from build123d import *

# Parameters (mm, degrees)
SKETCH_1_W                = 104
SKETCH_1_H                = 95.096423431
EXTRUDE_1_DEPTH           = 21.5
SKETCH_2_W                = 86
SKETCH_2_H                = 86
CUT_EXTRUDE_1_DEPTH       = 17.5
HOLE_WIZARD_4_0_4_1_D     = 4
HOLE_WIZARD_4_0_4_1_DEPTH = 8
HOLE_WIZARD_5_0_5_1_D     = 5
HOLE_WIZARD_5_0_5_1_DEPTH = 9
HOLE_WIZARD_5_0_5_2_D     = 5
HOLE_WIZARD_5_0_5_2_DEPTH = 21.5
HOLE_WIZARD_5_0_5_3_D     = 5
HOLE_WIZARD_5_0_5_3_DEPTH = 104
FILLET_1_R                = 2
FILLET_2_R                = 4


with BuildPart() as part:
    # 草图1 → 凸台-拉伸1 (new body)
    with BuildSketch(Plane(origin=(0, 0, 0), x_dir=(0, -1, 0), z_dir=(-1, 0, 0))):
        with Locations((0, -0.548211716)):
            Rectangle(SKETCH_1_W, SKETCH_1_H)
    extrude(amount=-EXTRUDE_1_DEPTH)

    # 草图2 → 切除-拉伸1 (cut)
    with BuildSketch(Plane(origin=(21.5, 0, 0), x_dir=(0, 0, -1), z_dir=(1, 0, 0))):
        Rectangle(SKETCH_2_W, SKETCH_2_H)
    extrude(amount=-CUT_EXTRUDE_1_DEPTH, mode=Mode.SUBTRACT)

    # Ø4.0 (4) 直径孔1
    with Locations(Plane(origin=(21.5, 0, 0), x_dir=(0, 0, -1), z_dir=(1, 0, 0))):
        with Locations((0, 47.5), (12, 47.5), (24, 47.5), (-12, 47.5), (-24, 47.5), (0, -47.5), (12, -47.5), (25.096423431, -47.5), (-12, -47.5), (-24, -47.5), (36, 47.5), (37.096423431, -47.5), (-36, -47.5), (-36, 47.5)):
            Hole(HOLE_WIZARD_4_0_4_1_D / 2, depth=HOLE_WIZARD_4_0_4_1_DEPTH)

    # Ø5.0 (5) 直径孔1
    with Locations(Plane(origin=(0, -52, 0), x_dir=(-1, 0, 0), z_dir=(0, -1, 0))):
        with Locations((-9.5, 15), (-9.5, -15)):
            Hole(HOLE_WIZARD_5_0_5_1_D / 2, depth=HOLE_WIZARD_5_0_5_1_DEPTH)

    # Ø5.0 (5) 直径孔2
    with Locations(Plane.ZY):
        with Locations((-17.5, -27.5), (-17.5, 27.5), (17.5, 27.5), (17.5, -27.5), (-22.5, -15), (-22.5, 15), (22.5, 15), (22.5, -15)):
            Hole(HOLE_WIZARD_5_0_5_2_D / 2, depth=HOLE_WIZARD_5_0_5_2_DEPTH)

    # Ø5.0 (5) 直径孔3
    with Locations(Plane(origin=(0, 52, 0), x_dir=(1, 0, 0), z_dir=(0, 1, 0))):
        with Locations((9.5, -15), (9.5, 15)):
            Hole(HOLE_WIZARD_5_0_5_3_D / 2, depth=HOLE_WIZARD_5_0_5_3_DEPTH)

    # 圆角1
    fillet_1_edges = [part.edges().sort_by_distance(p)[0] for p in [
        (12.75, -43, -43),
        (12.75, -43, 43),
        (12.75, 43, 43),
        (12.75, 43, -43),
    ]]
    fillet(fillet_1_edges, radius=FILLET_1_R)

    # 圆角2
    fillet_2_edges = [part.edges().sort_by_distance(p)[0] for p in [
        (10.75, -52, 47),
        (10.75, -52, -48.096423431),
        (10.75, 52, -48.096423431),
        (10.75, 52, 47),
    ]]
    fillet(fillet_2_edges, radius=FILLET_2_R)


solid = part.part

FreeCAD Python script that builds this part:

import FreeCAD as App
import Part
import Sketcher


def edges_at(feature, points):
    """Names of the edges that pass closest to the given points."""
    edges = feature.Shape.Edges
    near = lambda p: min(range(len(edges)), key=lambda i: edges[i].distToShape(Part.Vertex(*p))[0])
    return sorted({f"Edge{near(p) + 1}" for p in points})

doc = App.newDocument("Part")
body = doc.addObject("PartDesign::Body", "Body")

# Sketch on YZ plane
sketch1 = body.newObject("Sketcher::SketchObject", "Sketch")
sketch1.AttachmentSupport = (doc.getObject("YZ_Plane"), [""])
sketch1.MapMode = "FlatFace"
sketch1.addGeometry([
    Part.LineSegment(App.Vector(52, 47, 0), App.Vector(52, -48.096423, 0)),
    Part.LineSegment(App.Vector(52, -48.096423, 0), App.Vector(-52, -48.096423, 0)),
    Part.LineSegment(App.Vector(-52, -48.096423, 0), App.Vector(-52, 47, 0)),
    Part.LineSegment(App.Vector(-52, 47, 0), App.Vector(52, 47, 0)),
], False)
sketch1.addConstraint([
    Sketcher.Constraint("Coincident", 0, 2, 1, 1),
    Sketcher.Constraint("Coincident", 1, 2, 2, 1),
    Sketcher.Constraint("Coincident", 2, 2, 3, 1),
    Sketcher.Constraint("Coincident", 3, 2, 0, 1),
    Sketcher.Constraint("Vertical", 0),
    Sketcher.Constraint("Horizontal", 1),
    Sketcher.Constraint("Vertical", 2),
    Sketcher.Constraint("Horizontal", 3),
    Sketcher.Constraint("DistanceX", 1, 2, 1, 1, 104.0),
    Sketcher.Constraint("DistanceX", -1, 1, 0, 2, 52.0),
    Sketcher.Constraint("DistanceY", -1, 1, 2, 2, 47.0),
    Sketcher.Constraint("DistanceY", 0, 2, 0, 1, 95.096423),
])
pad1 = body.newObject("PartDesign::Pad", "Pad")
pad1.Profile = sketch1
pad1.Length = 21.5

# Sketch on YZ plane
sketch2 = body.newObject("Sketcher::SketchObject", "Sketch001")
sketch2.AttachmentSupport = (doc.getObject("YZ_Plane"), [""])
sketch2.MapMode = "FlatFace"
sketch2.AttachmentOffset = App.Placement(App.Vector(0, 0, 21.5), App.Rotation())
sketch2.addGeometry([
    Part.LineSegment(App.Vector(43, 43, 0), App.Vector(-43, 43, 0)),
    Part.LineSegment(App.Vector(-43, 43, 0), App.Vector(-43, -43, 0)),
    Part.LineSegment(App.Vector(-43, -43, 0), App.Vector(43, -43, 0)),
    Part.LineSegment(App.Vector(43, -43, 0), App.Vector(43, 43, 0)),
], False)
sketch2.addConstraint([
    Sketcher.Constraint("Coincident", 0, 2, 1, 1),
    Sketcher.Constraint("Coincident", 1, 2, 2, 1),
    Sketcher.Constraint("Coincident", 2, 2, 3, 1),
    Sketcher.Constraint("Coincident", 3, 2, 0, 1),
    Sketcher.Constraint("Horizontal", 0),
    Sketcher.Constraint("Vertical", 1),
    Sketcher.Constraint("Horizontal", 2),
    Sketcher.Constraint("Vertical", 3),
    Sketcher.Constraint("Symmetric", 0, 2, 2, 2, -1, 1),
    Sketcher.Constraint("Equal", 2, 1),
    Sketcher.Constraint("DistanceX", 0, 2, 0, 1, 86.0),
])
pocket1 = body.newObject("PartDesign::Pocket", "Pocket")
pocket1.Profile = sketch2
pocket1.Length = 17.5

# Sketch on YZ plane
sketch3 = body.newObject("Sketcher::SketchObject", "Sketch002")
sketch3.AttachmentSupport = (doc.getObject("YZ_Plane"), [""])
sketch3.MapMode = "FlatFace"
sketch3.AttachmentOffset = App.Placement(App.Vector(0, 0, 21.5), App.Rotation())
sketch3.addGeometry([
    Part.Circle(App.Vector(47.5, 0, 0), App.Vector(0, 0, 1), 2),  # 0
    Part.Circle(App.Vector(47.5, -12, 0), App.Vector(0, 0, 1), 2),  # 1
    Part.Circle(App.Vector(47.5, -24, 0), App.Vector(0, 0, 1), 2),  # 2
    Part.Circle(App.Vector(47.5, 12, 0), App.Vector(0, 0, 1), 2),  # 3
    Part.Circle(App.Vector(47.5, 24, 0), App.Vector(0, 0, 1), 2),  # 4
    Part.Circle(App.Vector(-47.5, 0, 0), App.Vector(0, 0, 1), 2),  # 5
    Part.Circle(App.Vector(-47.5, -12, 0), App.Vector(0, 0, 1), 2),  # 6
    Part.Circle(App.Vector(-47.5, -25.096423, 0), App.Vector(0, 0, 1), 2),  # 7
    Part.Circle(App.Vector(-47.5, 12, 0), App.Vector(0, 0, 1), 2),  # 8
    Part.Circle(App.Vector(-47.5, 24, 0), App.Vector(0, 0, 1), 2),  # 9
    Part.Circle(App.Vector(47.5, -36, 0), App.Vector(0, 0, 1), 2),  # 10
    Part.Circle(App.Vector(-47.5, -37.096423, 0), App.Vector(0, 0, 1), 2),  # 11
    Part.Circle(App.Vector(-47.5, 36, 0), App.Vector(0, 0, 1), 2),  # 12
    Part.Circle(App.Vector(47.5, 36, 0), App.Vector(0, 0, 1), 2),  # 13
], False)
sketch3.addConstraint([
    Sketcher.Constraint("Equal", 0, 1),
    Sketcher.Constraint("Equal", 1, 2),
    Sketcher.Constraint("Equal", 2, 3),
    Sketcher.Constraint("Equal", 3, 4),
    Sketcher.Constraint("Equal", 4, 5),
    Sketcher.Constraint("Equal", 5, 6),
    Sketcher.Constraint("Equal", 6, 7),
    Sketcher.Constraint("Equal", 7, 8),
    Sketcher.Constraint("Equal", 8, 9),
    Sketcher.Constraint("Equal", 9, 10),
    Sketcher.Constraint("Equal", 10, 11),
    Sketcher.Constraint("Equal", 11, 12),
    Sketcher.Constraint("Equal", 12, 13),
    Sketcher.Constraint("Symmetric", 0, 3, 5, 3, -1, 1),
    Sketcher.Constraint("Symmetric", 3, 3, 6, 3, -1, 1),
    Sketcher.Constraint("Symmetric", 1, 3, 8, 3, -1, 1),
    Sketcher.Constraint("Symmetric", 2, 3, 9, 3, -1, 1),
    Sketcher.Constraint("Symmetric", 10, 3, 12, 3, -1, 1),
    Sketcher.Constraint("Symmetric", 1, 3, 6, 3, -2),
    Sketcher.Constraint("Symmetric", 4, 3, 9, 3, -2),
    Sketcher.Constraint("Symmetric", 12, 3, 13, 3, -2),
    Sketcher.Constraint("PointOnObject", 0, 3, -1),
    Sketcher.Constraint("Vertical", 0, 3, 1, 3),
    Sketcher.Constraint("Vertical", 1, 3, 2, 3),
    Sketcher.Constraint("Vertical", 6, 3, 7, 3),
    Sketcher.Constraint("Vertical", 4, 3, 10, 3),
    Sketcher.Constraint("Vertical", 9, 3, 11, 3),
    Sketcher.Constraint("Diameter", 0, 4.0),
    Sketcher.Constraint("DistanceY", 1, 3, -1, 1, 12.0),
    Sketcher.Constraint("DistanceY", 2, 3, -1, 1, 24.0),
    Sketcher.Constraint("DistanceY", 10, 3, -1, 1, 36.0),
    Sketcher.Constraint("DistanceX", 5, 3, 0, 3, 95.0),
    Sketcher.Constraint("DistanceY", 11, 3, 7, 3, 12.0),
    Sketcher.Constraint("DistanceY", 7, 3, -1, 1, 25.096423),
])
doc.recompute()
hole = body.newObject("PartDesign::Hole", "Hole")
hole.Profile = sketch3
hole.ThreadType = "None"
hole.Diameter = 4
hole.DepthType = "Dimension"
hole.Depth = 8
hole.DrillPoint = "Flat"

# Sketch on XZ plane
sketch4 = body.newObject("Sketcher::SketchObject", "Sketch003")
sketch4.AttachmentSupport = (doc.getObject("XZ_Plane"), [""])
sketch4.MapMode = "FlatFace"
sketch4.AttachmentOffset = App.Placement(App.Vector(0, 0, 52), App.Rotation())
sketch4.addGeometry([
    Part.Circle(App.Vector(9.5, -15, 0), App.Vector(0, 0, 1), 2.5),
    Part.Circle(App.Vector(9.5, 15, 0), App.Vector(0, 0, 1), 2.5),
], False)
sketch4.addConstraint([
    Sketcher.Constraint("Equal", 0, 1),
    Sketcher.Constraint("Symmetric", 0, 3, 1, 3, -1),
    Sketcher.Constraint("Diameter", 0, 5.0),
    Sketcher.Constraint("DistanceY", 0, 3, -1, 1, 15.0),
    Sketcher.Constraint("DistanceX", -1, 1, 0, 3, 9.5),
])
doc.recompute()
hole2 = body.newObject("PartDesign::Hole", "Hole001")
hole2.Profile = sketch4
hole2.ThreadType = "None"
hole2.Diameter = 5
hole2.DepthType = "Dimension"
hole2.Depth = 9
hole2.DrillPoint = "Flat"

# Sketch on YZ plane
sketch5 = body.newObject("Sketcher::SketchObject", "Sketch004")
sketch5.AttachmentSupport = (doc.getObject("YZ_Plane"), [""])
sketch5.MapMode = "FlatFace"
sketch5.addGeometry([
    Part.Circle(App.Vector(-27.5, -17.5, 0), App.Vector(0, 0, 1), 2.5),  # 0
    Part.Circle(App.Vector(27.5, -17.5, 0), App.Vector(0, 0, 1), 2.5),  # 1
    Part.Circle(App.Vector(27.5, 17.5, 0), App.Vector(0, 0, 1), 2.5),  # 2
    Part.Circle(App.Vector(-27.5, 17.5, 0), App.Vector(0, 0, 1), 2.5),  # 3
    Part.Circle(App.Vector(-15, -22.5, 0), App.Vector(0, 0, 1), 2.5),  # 4
    Part.Circle(App.Vector(15, -22.5, 0), App.Vector(0, 0, 1), 2.5),  # 5
    Part.Circle(App.Vector(15, 22.5, 0), App.Vector(0, 0, 1), 2.5),  # 6
    Part.Circle(App.Vector(-15, 22.5, 0), App.Vector(0, 0, 1), 2.5),  # 7
], False)
sketch5.addConstraint([
    Sketcher.Constraint("Equal", 0, 1),
    Sketcher.Constraint("Equal", 1, 2),
    Sketcher.Constraint("Equal", 2, 3),
    Sketcher.Constraint("Equal", 3, 4),
    Sketcher.Constraint("Equal", 4, 5),
    Sketcher.Constraint("Equal", 5, 6),
    Sketcher.Constraint("Equal", 6, 7),
    Sketcher.Constraint("Symmetric", 0, 3, 2, 3, -1, 1),
    Sketcher.Constraint("Symmetric", 1, 3, 3, 3, -1, 1),
    Sketcher.Constraint("Symmetric", 4, 3, 6, 3, -1, 1),
    Sketcher.Constraint("Symmetric", 5, 3, 7, 3, -1, 1),
    Sketcher.Constraint("Symmetric", 0, 3, 1, 3, -2),
    Sketcher.Constraint("Symmetric", 4, 3, 5, 3, -2),
    Sketcher.Constraint("Diameter", 0, 5.0),
    Sketcher.Constraint("DistanceX", 4, 3, -1, 1, 15.0),
    Sketcher.Constraint("DistanceX", 0, 3, 1, 3, 55.0),
    Sketcher.Constraint("DistanceY", 1, 3, 2, 3, 35.0),
    Sketcher.Constraint("DistanceY", 4, 3, 0, 3, 5.0),
])
doc.recompute()
hole3 = body.newObject("PartDesign::Hole", "Hole002")
hole3.Profile = sketch5
hole3.ThreadType = "None"
hole3.Diameter = 5
hole3.DepthType = "Dimension"
hole3.Depth = 21.5
hole3.DrillPoint = "Flat"
hole3.Reversed = True

# Sketch on XZ plane
sketch6 = body.newObject("Sketcher::SketchObject", "Sketch005")
sketch6.AttachmentSupport = (doc.getObject("XZ_Plane"), [""])
sketch6.MapMode = "FlatFace"
sketch6.AttachmentOffset = App.Placement(App.Vector(0, 0, -52), App.Rotation())
sketch6.addGeometry([
    Part.Circle(App.Vector(9.5, 15, 0), App.Vector(0, 0, 1), 2.5),
    Part.Circle(App.Vector(9.5, -15, 0), App.Vector(0, 0, 1), 2.5),
], False)
sketch6.addConstraint([
    Sketcher.Constraint("Equal", 0, 1),
    Sketcher.Constraint("Symmetric", 0, 3, 1, 3, -1),
    Sketcher.Constraint("Diameter", 0, 5.0),
    Sketcher.Constraint("DistanceY", -1, 1, 0, 3, 15.0),
    Sketcher.Constraint("DistanceX", -1, 1, 0, 3, 9.5),
])
doc.recompute()
hole4 = body.newObject("PartDesign::Hole", "Hole003")
hole4.Profile = sketch6
hole4.ThreadType = "None"
hole4.Diameter = 5
hole4.DepthType = "Dimension"
hole4.Depth = 104
hole4.DrillPoint = "Flat"
hole4.Reversed = True
doc.recompute()

fillet = body.newObject("PartDesign::Fillet", "Fillet")
fillet.Base = (hole4, edges_at(hole4, [
    (12.75, -43, -43),
    (12.75, -43, 43),
    (12.75, 43, 43),
    (12.75, 43, -43),
]))
fillet.Radius = 2
doc.recompute()

fillet2 = body.newObject("PartDesign::Fillet", "Fillet001")
fillet2.Base = (fillet, edges_at(fillet, [
    (10.75, -52, 47),
    (10.75, -52, -48.096),
    (10.75, 52, -48.096),
    (10.75, 52, 47),
]))
fillet2.Radius = 4

doc.recompute()
